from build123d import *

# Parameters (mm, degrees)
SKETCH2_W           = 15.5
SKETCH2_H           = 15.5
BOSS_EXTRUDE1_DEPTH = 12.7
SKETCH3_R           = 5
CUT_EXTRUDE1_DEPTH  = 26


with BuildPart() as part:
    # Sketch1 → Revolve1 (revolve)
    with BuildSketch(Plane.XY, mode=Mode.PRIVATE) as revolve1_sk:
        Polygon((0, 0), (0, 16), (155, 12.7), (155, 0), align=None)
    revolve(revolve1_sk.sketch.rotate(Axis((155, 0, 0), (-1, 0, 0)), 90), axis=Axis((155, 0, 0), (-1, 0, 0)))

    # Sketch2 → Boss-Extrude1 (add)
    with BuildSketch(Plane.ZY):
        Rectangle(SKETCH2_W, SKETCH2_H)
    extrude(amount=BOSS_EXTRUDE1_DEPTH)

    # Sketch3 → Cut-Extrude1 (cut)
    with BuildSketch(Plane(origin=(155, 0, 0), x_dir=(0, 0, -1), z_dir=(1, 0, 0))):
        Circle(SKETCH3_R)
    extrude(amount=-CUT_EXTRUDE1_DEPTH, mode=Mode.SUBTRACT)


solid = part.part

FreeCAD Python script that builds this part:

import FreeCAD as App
import Part
import Sketcher
from FreeCAD import Vector
Q = App.Units.Quantity


def add_polygon(sketch, points):
    """Adds a closed chain of lines whose ends are joined by coincident constraints."""
    first, n = sketch.GeometryCount, len(points)
    for a, b in zip(points, points[1:] + points[:1]):
        sketch.addGeometry(Part.LineSegment(App.Vector(*a, 0), App.Vector(*b, 0)), False)
    for i in range(n):
        sketch.addConstraint(Sketcher.Constraint("Coincident", first + i, 2, first + (i + 1) % n, 1))

doc = App.newDocument("Part")
params = doc.addObject("Spreadsheet::Sheet", "Params")
for row, (alias, value) in enumerate([
    ("sketch1_width", "155 mm"),
    ("sketch1_height", "16 mm"),
    ("sketch1_height2", "12.7 mm"),
    ("revolution_angle", "360 deg"),
    ("sketch2_width", "15.5 mm"),
    ("pad1_length", "12.7 mm"),
    ("sketch3_diameter", "10 mm"),
    ("pocket1_length", "26 mm"),
], start=1):
    params.set(f"A{row}", alias)
    params.set(f"B{row}", "=" + value)
    params.setAlias(f"B{row}", alias)

body = doc.addObject("PartDesign::Body", "Body")

# Sketch on XY plane
sketch1 = body.newObject("Sketcher::SketchObject", "Sketch")
sketch1.AttachmentSupport = (doc.getObject("XY_Plane"), [""])
sketch1.MapMode = "FlatFace"
add_polygon(sketch1, [(0, 16), (0, 0), (155, 0), (155, 12.7)])  # lines 0-3
sketch1.addConstraint(Sketcher.Constraint("Vertical", 0))
sketch1.addConstraint(Sketcher.Constraint("Horizontal", 1))
sketch1.addConstraint(Sketcher.Constraint("Vertical", 2))
sketch1.addConstraint(Sketcher.Constraint("Coincident", 0, 2, -1, 1))
sketch1.addConstraint(Sketcher.Constraint("DistanceX", 1, 1, 1, 2, Q("155 mm")))
sketch1.addConstraint(Sketcher.Constraint("DistanceY", 0, 2, 0, 1, Q("16 mm")))
sketch1.addConstraint(Sketcher.Constraint("DistanceY", 2, 1, 2, 2, Q("12.7 mm")))
sketch1.setExpression("Constraints[8]", "Params.sketch1_width")
sketch1.setExpression("Constraints[9]", "Params.sketch1_height")
sketch1.setExpression("Constraints[10]", "Params.sketch1_height2")
revolution = body.newObject("PartDesign::Revolution", "Revolution")
revolution.Profile = sketch1
revolution.ReferenceAxis = (sketch1, ["H_Axis"])
revolution.setExpression("Angle", "Params.revolution_angle")

# Sketch on YZ plane
sketch2 = body.newObject("Sketcher::SketchObject", "Sketch001")
sketch2.AttachmentSupport = (doc.getObject("YZ_Plane"), [""])
sketch2.MapMode = "FlatFace"
add_polygon(sketch2, [(7.75, -7.75), (-7.75, -7.75), (-7.75, 7.75), (7.75, 7.75)])  # lines 0-3
sketch2.addConstraint(Sketcher.Constraint("Horizontal", 0))
sketch2.addConstraint(Sketcher.Constraint("Vertical", 1))
sketch2.addConstraint(Sketcher.Constraint("Horizontal", 2))
sketch2.addConstraint(Sketcher.Constraint("Vertical", 3))
sketch2.addConstraint(Sketcher.Constraint("Symmetric", 0, 2, 2, 2, -1, 1))
sketch2.addConstraint(Sketcher.Constraint("Equal", 2, 1))
sketch2.addConstraint(Sketcher.Constraint("DistanceX", 0, 2, 0, 1, Q("15.5 mm")))
sketch2.setExpression("Constraints[10]", "Params.sketch2_width")
pad1 = body.newObject("PartDesign::Pad", "Pad")
pad1.Profile = sketch2
pad1.setExpression("Length", "Params.pad1_length")
pad1.Reversed = True

# Sketch on YZ plane
sketch3 = body.newObject("Sketcher::SketchObject", "Sketch002")
sketch3.AttachmentSupport = (doc.getObject("YZ_Plane"), [""])
sketch3.MapMode = "FlatFace"
sketch3.AttachmentOffset = App.Placement(Vector(0, 0, 155), App.Rotation())
sketch3.addGeometry(Part.Circle(Vector(0, 0, 0), Vector(0, 0, 1), 5), False)
sketch3.addConstraint(Sketcher.Constraint("Coincident", 0, 3, -1, 1))
sketch3.addConstraint(Sketcher.Constraint("Diameter", 0, Q("10 mm")))
sketch3.setExpression("Constraints[1]", "Params.sketch3_diameter")
pocket1 = body.newObject("PartDesign::Pocket", "Pocket")
pocket1.Profile = sketch3
pocket1.setExpression("Length", "Params.pocket1_length")

doc.recompute()
